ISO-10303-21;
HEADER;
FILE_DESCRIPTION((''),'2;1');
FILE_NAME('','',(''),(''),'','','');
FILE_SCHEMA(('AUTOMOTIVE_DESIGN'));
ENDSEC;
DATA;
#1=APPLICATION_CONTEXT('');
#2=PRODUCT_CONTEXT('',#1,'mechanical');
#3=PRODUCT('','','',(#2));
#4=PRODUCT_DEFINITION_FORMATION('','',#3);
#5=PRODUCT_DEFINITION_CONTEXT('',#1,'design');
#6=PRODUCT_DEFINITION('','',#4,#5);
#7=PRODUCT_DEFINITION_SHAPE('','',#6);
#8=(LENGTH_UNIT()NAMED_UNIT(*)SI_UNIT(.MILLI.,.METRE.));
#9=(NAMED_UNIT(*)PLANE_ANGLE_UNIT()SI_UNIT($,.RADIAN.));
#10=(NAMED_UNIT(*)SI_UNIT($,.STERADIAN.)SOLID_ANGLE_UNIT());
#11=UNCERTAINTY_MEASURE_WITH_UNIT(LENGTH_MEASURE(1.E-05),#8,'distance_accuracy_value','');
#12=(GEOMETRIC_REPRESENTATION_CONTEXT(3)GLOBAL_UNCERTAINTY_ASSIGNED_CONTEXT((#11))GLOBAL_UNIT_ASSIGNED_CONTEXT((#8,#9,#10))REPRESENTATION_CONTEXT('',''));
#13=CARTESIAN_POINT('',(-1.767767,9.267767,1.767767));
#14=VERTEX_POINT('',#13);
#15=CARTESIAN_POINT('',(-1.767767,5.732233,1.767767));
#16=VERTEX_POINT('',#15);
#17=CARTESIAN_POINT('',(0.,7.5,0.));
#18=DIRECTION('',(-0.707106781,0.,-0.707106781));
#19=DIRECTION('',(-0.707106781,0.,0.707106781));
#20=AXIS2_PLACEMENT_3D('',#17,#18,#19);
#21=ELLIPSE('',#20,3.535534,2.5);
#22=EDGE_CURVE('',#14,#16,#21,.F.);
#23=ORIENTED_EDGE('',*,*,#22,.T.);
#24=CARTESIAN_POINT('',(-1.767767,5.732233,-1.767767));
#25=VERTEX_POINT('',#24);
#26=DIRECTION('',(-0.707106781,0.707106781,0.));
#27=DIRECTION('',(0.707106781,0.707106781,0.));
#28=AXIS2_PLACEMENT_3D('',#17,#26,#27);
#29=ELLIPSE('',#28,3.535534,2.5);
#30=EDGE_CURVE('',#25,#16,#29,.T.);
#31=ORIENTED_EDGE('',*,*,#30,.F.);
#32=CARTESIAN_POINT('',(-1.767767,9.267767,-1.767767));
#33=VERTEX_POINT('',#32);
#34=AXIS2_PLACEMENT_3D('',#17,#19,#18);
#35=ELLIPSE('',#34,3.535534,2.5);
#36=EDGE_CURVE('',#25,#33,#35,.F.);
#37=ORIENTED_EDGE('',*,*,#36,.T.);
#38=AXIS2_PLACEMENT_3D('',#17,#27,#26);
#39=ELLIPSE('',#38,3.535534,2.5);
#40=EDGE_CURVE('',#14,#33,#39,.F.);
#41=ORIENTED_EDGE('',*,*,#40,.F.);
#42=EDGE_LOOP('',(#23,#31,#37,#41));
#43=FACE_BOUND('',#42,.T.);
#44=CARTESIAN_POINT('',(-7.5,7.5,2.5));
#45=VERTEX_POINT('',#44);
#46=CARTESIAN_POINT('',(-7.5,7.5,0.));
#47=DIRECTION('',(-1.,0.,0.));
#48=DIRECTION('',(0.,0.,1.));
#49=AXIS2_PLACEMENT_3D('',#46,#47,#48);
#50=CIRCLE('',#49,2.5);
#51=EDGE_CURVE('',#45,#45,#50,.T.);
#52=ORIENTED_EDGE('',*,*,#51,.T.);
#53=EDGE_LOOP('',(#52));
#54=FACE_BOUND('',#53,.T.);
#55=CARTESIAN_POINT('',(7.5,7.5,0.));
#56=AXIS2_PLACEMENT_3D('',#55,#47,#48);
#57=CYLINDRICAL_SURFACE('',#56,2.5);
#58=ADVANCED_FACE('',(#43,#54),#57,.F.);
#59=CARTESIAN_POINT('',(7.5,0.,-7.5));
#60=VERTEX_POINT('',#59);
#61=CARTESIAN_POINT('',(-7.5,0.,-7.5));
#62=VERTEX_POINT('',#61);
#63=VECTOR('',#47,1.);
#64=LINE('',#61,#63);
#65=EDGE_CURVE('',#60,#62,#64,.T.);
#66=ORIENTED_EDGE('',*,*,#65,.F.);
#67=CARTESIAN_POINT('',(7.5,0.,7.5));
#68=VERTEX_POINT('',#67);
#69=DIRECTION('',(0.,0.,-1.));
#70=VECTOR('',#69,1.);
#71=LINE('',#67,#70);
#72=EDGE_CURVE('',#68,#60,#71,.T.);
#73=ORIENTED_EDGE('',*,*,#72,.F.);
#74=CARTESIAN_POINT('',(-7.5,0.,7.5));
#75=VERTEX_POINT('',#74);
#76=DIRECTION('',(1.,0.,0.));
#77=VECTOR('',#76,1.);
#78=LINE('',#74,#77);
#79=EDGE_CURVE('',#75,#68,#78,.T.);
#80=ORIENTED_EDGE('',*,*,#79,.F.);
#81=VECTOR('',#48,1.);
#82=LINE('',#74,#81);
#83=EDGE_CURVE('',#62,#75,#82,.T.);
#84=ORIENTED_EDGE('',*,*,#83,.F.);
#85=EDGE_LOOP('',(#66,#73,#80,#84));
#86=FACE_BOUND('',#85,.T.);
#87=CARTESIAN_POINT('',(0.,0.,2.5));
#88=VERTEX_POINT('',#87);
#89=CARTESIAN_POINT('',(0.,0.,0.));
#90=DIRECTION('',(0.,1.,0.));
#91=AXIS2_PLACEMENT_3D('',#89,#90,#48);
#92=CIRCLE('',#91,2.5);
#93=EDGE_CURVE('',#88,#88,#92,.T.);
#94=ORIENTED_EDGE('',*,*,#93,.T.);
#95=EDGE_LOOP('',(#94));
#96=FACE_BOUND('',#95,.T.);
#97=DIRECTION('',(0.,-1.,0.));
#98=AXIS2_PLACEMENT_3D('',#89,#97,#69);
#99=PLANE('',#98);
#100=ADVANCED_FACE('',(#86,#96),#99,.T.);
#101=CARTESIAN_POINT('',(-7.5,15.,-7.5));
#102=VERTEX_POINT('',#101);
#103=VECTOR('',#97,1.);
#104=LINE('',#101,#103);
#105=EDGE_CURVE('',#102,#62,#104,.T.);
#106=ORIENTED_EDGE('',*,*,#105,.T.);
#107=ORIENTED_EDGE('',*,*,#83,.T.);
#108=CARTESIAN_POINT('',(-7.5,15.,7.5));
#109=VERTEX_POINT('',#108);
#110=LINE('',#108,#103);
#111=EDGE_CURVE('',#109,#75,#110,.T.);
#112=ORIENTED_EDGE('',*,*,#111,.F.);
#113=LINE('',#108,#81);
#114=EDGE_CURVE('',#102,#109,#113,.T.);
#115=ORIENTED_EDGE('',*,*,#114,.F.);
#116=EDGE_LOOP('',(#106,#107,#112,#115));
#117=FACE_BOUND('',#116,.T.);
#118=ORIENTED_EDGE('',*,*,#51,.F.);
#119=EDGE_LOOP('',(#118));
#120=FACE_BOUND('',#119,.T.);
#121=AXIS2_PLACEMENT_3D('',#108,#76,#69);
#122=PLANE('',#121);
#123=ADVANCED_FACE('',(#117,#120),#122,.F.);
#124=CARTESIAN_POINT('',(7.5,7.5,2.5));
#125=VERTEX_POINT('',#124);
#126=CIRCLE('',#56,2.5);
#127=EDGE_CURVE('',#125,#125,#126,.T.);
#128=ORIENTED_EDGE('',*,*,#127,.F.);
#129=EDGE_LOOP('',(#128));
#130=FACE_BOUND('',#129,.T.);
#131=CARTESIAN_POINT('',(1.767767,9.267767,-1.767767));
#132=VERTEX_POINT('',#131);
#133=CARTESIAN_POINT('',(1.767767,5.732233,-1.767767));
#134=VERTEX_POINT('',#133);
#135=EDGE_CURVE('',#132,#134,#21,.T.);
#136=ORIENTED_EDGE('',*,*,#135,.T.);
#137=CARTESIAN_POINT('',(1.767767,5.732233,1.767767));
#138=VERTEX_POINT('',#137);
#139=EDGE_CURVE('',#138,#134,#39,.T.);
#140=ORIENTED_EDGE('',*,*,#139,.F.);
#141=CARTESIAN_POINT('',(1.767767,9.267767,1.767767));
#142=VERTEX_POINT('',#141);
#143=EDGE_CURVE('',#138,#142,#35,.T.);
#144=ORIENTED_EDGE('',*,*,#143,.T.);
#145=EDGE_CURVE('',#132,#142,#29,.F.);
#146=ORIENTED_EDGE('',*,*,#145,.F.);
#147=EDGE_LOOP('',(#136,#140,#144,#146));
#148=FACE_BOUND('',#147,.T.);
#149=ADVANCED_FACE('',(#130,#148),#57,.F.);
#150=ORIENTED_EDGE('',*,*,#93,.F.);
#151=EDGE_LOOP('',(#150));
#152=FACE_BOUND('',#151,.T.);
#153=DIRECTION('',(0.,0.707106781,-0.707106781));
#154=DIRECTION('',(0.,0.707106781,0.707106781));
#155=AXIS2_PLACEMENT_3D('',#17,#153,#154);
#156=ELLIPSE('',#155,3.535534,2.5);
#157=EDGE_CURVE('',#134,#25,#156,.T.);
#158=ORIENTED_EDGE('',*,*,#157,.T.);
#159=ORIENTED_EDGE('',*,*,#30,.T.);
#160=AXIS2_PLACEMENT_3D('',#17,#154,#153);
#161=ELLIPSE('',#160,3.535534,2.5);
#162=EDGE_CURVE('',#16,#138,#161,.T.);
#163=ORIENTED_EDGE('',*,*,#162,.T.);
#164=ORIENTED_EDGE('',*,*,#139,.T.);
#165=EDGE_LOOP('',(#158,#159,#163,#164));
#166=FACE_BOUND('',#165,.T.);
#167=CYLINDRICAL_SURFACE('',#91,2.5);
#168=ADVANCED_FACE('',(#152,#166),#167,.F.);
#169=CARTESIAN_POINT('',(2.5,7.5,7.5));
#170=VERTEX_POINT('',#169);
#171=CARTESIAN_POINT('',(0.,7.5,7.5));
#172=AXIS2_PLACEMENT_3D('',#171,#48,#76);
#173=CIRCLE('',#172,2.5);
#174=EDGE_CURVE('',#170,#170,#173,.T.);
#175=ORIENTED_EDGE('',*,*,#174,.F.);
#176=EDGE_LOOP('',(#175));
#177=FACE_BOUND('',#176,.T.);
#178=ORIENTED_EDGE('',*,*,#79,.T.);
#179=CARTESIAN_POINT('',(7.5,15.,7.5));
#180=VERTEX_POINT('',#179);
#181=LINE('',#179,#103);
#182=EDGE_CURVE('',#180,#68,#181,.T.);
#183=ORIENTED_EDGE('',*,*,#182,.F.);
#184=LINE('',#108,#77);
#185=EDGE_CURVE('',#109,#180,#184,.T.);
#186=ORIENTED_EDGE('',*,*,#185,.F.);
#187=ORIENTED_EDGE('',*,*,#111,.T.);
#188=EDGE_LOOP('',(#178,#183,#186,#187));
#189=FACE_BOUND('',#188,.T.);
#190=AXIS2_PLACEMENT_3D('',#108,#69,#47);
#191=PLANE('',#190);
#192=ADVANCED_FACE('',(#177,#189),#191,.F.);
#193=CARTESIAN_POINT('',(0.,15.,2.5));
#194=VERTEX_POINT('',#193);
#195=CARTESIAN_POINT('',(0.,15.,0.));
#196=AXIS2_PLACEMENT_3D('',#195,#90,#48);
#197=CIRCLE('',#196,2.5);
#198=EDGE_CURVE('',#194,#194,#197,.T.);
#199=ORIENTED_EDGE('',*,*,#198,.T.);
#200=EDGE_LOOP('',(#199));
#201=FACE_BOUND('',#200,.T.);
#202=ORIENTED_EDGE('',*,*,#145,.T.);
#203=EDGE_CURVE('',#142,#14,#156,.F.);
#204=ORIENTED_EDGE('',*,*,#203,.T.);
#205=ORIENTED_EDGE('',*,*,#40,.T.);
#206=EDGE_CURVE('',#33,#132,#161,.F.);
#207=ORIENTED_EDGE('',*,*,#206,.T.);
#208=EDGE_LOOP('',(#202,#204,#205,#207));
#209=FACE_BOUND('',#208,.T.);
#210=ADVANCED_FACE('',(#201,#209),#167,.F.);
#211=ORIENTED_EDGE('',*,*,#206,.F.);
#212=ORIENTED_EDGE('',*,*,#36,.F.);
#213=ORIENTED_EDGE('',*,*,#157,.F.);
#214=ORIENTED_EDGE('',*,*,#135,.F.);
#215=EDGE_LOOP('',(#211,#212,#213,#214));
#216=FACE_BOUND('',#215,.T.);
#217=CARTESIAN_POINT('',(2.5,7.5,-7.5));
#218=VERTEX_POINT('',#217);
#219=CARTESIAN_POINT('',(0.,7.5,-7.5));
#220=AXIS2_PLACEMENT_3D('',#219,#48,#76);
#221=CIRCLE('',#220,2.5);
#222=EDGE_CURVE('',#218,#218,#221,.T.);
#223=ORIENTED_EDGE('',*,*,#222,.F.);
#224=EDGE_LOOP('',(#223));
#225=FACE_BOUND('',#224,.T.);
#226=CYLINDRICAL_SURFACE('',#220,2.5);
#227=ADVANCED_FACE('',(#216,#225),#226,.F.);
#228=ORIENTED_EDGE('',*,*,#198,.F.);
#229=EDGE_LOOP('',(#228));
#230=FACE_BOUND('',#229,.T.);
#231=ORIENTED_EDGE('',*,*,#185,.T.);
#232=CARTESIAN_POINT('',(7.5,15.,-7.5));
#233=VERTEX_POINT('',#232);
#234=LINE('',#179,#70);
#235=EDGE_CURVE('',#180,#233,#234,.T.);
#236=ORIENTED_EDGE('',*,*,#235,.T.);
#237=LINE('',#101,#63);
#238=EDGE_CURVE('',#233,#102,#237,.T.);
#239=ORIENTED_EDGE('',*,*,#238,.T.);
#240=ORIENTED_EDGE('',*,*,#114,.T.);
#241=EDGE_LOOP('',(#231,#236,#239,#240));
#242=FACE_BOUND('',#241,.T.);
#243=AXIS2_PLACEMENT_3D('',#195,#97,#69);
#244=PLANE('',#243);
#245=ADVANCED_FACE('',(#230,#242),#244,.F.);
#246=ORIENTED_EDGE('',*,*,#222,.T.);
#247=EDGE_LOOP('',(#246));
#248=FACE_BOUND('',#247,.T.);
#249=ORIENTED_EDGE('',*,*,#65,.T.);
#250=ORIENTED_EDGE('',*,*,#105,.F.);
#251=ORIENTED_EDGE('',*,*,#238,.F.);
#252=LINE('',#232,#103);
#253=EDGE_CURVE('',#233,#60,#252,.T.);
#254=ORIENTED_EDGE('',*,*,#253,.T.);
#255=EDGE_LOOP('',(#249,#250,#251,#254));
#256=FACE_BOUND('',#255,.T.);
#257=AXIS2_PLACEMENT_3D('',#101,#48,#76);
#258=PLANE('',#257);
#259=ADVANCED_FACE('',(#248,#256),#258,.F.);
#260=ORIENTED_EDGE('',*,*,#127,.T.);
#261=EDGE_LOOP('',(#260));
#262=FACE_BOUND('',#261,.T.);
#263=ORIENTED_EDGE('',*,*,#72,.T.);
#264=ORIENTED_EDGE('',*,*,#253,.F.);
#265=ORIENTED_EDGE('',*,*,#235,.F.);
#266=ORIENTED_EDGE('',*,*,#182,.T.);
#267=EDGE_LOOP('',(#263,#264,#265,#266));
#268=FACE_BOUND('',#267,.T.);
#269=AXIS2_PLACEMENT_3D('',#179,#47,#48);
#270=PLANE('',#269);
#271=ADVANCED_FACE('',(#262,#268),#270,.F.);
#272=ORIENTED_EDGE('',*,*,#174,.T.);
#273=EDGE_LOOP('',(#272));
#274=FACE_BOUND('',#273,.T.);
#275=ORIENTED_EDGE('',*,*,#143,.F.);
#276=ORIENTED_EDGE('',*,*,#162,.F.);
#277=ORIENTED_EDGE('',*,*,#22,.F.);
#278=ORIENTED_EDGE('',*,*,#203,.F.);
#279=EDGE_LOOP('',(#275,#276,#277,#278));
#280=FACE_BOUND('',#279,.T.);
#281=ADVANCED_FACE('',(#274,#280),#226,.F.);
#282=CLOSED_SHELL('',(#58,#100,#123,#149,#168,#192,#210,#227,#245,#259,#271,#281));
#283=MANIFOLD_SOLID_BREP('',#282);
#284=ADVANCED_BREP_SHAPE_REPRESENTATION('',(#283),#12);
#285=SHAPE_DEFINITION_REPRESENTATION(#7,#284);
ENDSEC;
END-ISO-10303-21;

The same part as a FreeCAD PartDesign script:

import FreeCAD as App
import Part
import Sketcher

V = App.Vector
Q = App.Units.Quantity

doc = App.newDocument("Part")
body = doc.addObject("PartDesign::Body", "Body")

sketch1 = body.newObject("Sketcher::SketchObject", "Sketch")
sketch1.AttachmentSupport = (doc.getObject("XZ_Plane"), [""])
sketch1.MapMode = "FlatFace"
sketch1.addGeometry([
    Part.LineSegment(V(-8, -8, 0), V(-8, 8, 0)),
    Part.LineSegment(V(-8, 8, 0), V(8, 8, 0)),
    Part.LineSegment(V(8, 8, 0), V(8, -8, 0)),
    Part.LineSegment(V(8, -8, 0), V(-8, -8, 0)),
], False)
sketch1.addConstraint([
    Sketcher.Constraint("Coincident", 0, 2, 1, 1),
    Sketcher.Constraint("Coincident", 1, 2, 2, 1),
    Sketcher.Constraint("Coincident", 2, 2, 3, 1),
    Sketcher.Constraint("Coincident", 3, 2, 0, 1),
    Sketcher.Constraint("Vertical", 0),
    Sketcher.Constraint("Horizontal", 1),
    Sketcher.Constraint("Vertical", 2),
    Sketcher.Constraint("Horizontal", 3),
    Sketcher.Constraint("Symmetric", 0, 2, 2, 2, -1, 1),
    Sketcher.Constraint("Equal", 3, 0),
    Sketcher.Constraint("DistanceX", 1, 1, 1, 2, Q("15 mm")),
])
pad1 = body.newObject("PartDesign::Pad", "Pad")
pad1.Profile = sketch1
pad1.Length = 15
pad1.Reversed = True

sketch2 = body.newObject("Sketcher::SketchObject", "Sketch001")
sketch2.AttachmentSupport = (doc.getObject("XZ_Plane"), [""])
sketch2.MapMode = "FlatFace"
sketch2.AttachmentOffset = App.Placement(V(0, 0, -15), App.Rotation())
sketch2.addGeometry(Part.Circle(V(0, 0, 0), V(0, 0, 1), 2.5), False)
sketch2.addConstraint([
    Sketcher.Constraint("Coincident", 0, 3, -1, 1),
    Sketcher.Constraint("Diameter", 0, Q("5 mm")),
])
pocket1 = body.newObject("PartDesign::Pocket", "Pocket")
pocket1.Profile = sketch2
pocket1.Type = "ThroughAll"
pocket1.Reversed = True

sketch3 = body.newObject("Sketcher::SketchObject", "Sketch002")
sketch3.AttachmentSupport = (doc.getObject("YZ_Plane"), [""])
sketch3.MapMode = "FlatFace"
sketch3.AttachmentOffset = App.Placement(V(0, 0, -7.5), App.Rotation())
sketch3.addGeometry(Part.Circle(V(7.5, 0, 0), V(0, 0, 1), 2.5), False)
sketch3.addConstraint([
    Sketcher.Constraint("PointOnObject", 0, 3, -1),
    Sketcher.Constraint("Diameter", 0, Q("5 mm")),
    Sketcher.Constraint("DistanceX", -1, 1, 0, 3, Q("7.5 mm")),
])
pocket2 = body.newObject("PartDesign::Pocket", "Pocket001")
pocket2.Profile = sketch3
pocket2.Type = "ThroughAll"
pocket2.Reversed = True

sketch4 = body.newObject("Sketcher::SketchObject", "Sketch003")
sketch4.AttachmentSupport = (doc.getObject("XY_Plane"), [""])
sketch4.MapMode = "FlatFace"
sketch4.AttachmentOffset = App.Placement(V(0, 0, 7.5), App.Rotation())
sketch4.addGeometry(Part.Circle(V(0, 7.5, 0), V(0, 0, 1), 2.5), False)
sketch4.addConstraint([
    Sketcher.Constraint("PointOnObject", 0, 3, -2),
    Sketcher.Constraint("Diameter", 0, Q("5 mm")),
    Sketcher.Constraint("DistanceY", -1, 1, 0, 3, Q("7.5 mm")),
])
pocket3 = body.newObject("PartDesign::Pocket", "Pocket002")
pocket3.Profile = sketch4
pocket3.Type = "ThroughAll"

doc.recompute()
